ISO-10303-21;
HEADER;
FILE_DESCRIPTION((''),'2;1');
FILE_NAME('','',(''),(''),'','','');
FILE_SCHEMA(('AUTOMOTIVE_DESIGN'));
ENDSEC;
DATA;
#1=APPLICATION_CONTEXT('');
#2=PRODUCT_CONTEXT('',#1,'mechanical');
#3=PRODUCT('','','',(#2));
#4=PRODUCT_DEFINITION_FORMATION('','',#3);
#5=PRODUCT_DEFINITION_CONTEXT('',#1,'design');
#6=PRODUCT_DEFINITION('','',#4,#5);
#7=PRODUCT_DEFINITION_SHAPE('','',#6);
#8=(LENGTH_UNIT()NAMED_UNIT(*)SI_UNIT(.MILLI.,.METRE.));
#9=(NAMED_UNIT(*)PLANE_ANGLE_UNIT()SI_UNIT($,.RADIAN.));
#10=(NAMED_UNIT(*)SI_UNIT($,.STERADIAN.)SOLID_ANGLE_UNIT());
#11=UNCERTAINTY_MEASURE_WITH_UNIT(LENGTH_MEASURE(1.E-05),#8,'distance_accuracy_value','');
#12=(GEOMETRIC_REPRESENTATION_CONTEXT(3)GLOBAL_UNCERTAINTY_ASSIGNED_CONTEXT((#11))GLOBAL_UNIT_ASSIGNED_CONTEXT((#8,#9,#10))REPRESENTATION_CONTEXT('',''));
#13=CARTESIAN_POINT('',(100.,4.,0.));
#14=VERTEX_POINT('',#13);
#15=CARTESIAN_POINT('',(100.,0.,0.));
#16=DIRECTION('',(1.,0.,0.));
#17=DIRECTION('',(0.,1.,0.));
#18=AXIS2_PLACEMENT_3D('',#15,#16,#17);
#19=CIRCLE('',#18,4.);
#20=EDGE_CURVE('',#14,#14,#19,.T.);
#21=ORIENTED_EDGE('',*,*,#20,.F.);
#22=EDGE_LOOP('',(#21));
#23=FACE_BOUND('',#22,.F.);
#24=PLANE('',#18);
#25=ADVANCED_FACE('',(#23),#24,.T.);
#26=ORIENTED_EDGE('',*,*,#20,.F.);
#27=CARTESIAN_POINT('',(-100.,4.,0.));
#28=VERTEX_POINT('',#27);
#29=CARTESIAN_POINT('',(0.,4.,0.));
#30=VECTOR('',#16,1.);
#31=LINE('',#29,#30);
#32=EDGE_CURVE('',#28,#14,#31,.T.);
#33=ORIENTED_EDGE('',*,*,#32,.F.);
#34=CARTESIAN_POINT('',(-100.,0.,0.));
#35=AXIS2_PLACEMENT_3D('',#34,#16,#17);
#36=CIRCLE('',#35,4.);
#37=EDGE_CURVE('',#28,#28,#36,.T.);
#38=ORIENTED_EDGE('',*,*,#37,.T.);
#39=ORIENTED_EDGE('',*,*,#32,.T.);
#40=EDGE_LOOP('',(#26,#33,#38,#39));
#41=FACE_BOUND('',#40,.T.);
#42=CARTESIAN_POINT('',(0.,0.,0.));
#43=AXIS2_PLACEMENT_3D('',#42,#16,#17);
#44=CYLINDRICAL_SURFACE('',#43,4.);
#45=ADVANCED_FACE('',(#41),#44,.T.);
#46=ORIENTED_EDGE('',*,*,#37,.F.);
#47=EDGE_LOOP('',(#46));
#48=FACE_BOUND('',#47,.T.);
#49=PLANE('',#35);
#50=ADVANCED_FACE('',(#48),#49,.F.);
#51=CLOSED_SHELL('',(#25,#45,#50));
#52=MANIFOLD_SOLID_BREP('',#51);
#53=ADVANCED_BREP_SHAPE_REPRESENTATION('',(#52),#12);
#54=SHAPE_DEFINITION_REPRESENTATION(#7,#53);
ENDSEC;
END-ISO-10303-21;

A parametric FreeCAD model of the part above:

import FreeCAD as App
import Part
import Sketcher
Q = App.Units.Quantity

doc = App.newDocument("Part")
body = doc.addObject("PartDesign::Body", "Body")

# Sketch on XY plane
sketch1 = doc.addObject("Sketcher::SketchObject", "Sketch")
body.addObject(sketch1)
sketch1.AttachmentSupport = (doc.XY_Plane, [""])
sketch1.MapMode = "FlatFace"
sketch1.addGeometry(Part.LineSegment(App.Vector(-100, 4, 0), App.Vector(-100, 0, 0)), False)
sketch1.addGeometry(Part.LineSegment(App.Vector(-100, 0, 0), App.Vector(100, 0, 0)), False)
sketch1.addGeometry(Part.LineSegment(App.Vector(100, 0, 0), App.Vector(100, 4, 0)), False)
sketch1.addGeometry(Part.LineSegment(App.Vector(100, 4, 0), App.Vector(-100, 4, 0)), False)
sketch1.addConstraint(Sketcher.Constraint("Coincident", 0, 2, 1, 1))
sketch1.addConstraint(Sketcher.Constraint("Coincident", 1, 2, 2, 1))
sketch1.addConstraint(Sketcher.Constraint("Coincident", 2, 2, 3, 1))
sketch1.addConstraint(Sketcher.Constraint("Coincident", 3, 2, 0, 1))
sketch1.addConstraint(Sketcher.Constraint("Vertical", 0))
sketch1.addConstraint(Sketcher.Constraint("Horizontal", 1))
sketch1.addConstraint(Sketcher.Constraint("Vertical", 2))
sketch1.addConstraint(Sketcher.Constraint("Horizontal", 3))
sketch1.addConstraint(Sketcher.Constraint("Symmetric", 0, 2, 1, 2, -1, 1))
sketch1.addConstraint(Sketcher.Constraint("DistanceX", 1, 1, 1, 2, Q("200 mm")))
sketch1.addConstraint(Sketcher.Constraint("DistanceY", 0, 2, 0, 1, Q("4 mm")))
revolution = doc.addObject("PartDesign::Revolution", "Revolution")
body.addObject(revolution)
revolution.Profile = sketch1
revolution.ReferenceAxis = (sketch1, ["H_Axis"])
revolution.Angle = 360

doc.recompute()
